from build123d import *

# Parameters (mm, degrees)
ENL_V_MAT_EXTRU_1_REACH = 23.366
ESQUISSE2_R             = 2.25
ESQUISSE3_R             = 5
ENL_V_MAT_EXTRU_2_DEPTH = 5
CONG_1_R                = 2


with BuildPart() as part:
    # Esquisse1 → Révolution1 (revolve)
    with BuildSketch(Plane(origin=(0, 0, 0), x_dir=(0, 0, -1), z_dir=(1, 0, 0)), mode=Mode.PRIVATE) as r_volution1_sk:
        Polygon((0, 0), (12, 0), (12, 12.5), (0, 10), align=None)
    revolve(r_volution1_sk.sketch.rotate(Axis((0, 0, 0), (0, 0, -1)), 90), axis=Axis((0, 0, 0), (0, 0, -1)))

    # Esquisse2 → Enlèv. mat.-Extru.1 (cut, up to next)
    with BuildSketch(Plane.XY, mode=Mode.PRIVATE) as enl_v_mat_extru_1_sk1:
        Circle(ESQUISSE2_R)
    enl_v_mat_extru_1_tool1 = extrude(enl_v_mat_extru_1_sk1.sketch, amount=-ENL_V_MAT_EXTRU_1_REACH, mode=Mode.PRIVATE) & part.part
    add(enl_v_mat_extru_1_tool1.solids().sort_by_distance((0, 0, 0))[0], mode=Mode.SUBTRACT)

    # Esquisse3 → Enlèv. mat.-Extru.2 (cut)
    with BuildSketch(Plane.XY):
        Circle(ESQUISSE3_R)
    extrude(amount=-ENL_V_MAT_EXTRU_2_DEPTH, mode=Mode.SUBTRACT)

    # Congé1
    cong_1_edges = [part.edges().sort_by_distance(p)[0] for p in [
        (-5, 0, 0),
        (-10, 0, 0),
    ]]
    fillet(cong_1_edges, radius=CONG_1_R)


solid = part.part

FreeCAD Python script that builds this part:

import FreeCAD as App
import Part
import Sketcher
from FreeCAD import Vector
Q = App.Units.Quantity


def edges_at(feature, points):
    """Names of the edges that pass closest to the given points."""
    edges = feature.Shape.Edges
    near = lambda p: min(range(len(edges)), key=lambda i: edges[i].distToShape(Part.Vertex(*p))[0])
    return sorted({f"Edge{near(p) + 1}" for p in points})

doc = App.newDocument("Part")
body = doc.addObject("PartDesign::Body", "Body")

sketch1 = body.newObject("Sketcher::SketchObject", "Sketch")
sketch1.AttachmentSupport = (doc.getObject("YZ_Plane"), [""])
sketch1.MapMode = "FlatFace"
sketch1.addGeometry(Part.LineSegment(Vector(0, 0, 0), Vector(0, -12, 0)), False)
sketch1.addGeometry(Part.LineSegment(Vector(0, -12, 0), Vector(12, -12, 0)), False)
sketch1.addGeometry(Part.LineSegment(Vector(12, -12, 0), Vector(10, 0, 0)), False)
sketch1.addGeometry(Part.LineSegment(Vector(10, 0, 0), Vector(0, 0, 0)), False)
sketch1.addConstraint(Sketcher.Constraint("Coincident", 0, 2, 1, 1))
sketch1.addConstraint(Sketcher.Constraint("Coincident", 1, 2, 2, 1))
sketch1.addConstraint(Sketcher.Constraint("Coincident", 2, 2, 3, 1))
sketch1.addConstraint(Sketcher.Constraint("Coincident", 3, 2, 0, 1))
sketch1.addConstraint(Sketcher.Constraint("Vertical", 0))
sketch1.addConstraint(Sketcher.Constraint("Horizontal", 1))
sketch1.addConstraint(Sketcher.Constraint("Horizontal", 3))
sketch1.addConstraint(Sketcher.Constraint("Coincident", 3, 2, -1, 1))
sketch1.addConstraint(Sketcher.Constraint("DistanceX", 3, 2, 3, 1, Q("10 mm")))
sketch1.addConstraint(Sketcher.Constraint("DistanceY", 0, 2, 0, 1, Q("12 mm")))
sketch1.addConstraint(Sketcher.Constraint("DistanceX", 1, 1, 1, 2, Q("12.5 mm")))
revolution = body.newObject("PartDesign::Revolution", "Revolution")
revolution.Profile = sketch1
revolution.ReferenceAxis = (sketch1, ["V_Axis"])
revolution.Angle = 360

sketch2 = body.newObject("Sketcher::SketchObject", "Sketch001")
sketch2.AttachmentSupport = (doc.getObject("XY_Plane"), [""])
sketch2.MapMode = "FlatFace"
sketch2.addGeometry(Part.Circle(Vector(0, 0, 0), Vector(0, 0, 1), 2.2), False)
sketch2.addConstraint(Sketcher.Constraint("Coincident", 0, 3, -1, 1))
sketch2.addConstraint(Sketcher.Constraint("Diameter", 0, Q("4.5 mm")))
pocket1 = body.newObject("PartDesign::Pocket", "Pocket")
pocket1.Profile = sketch2
pocket1.Type = "UpToFirst"

sketch3 = body.newObject("Sketcher::SketchObject", "Sketch002")
sketch3.AttachmentSupport = (doc.getObject("XY_Plane"), [""])
sketch3.MapMode = "FlatFace"
sketch3.addGeometry(Part.Circle(Vector(0, 0, 0), Vector(0, 0, 1), 5), False)
sketch3.addConstraint(Sketcher.Constraint("Coincident", 0, 3, -1, 1))
sketch3.addConstraint(Sketcher.Constraint("Diameter", 0, Q("10 mm")))
pocket2 = body.newObject("PartDesign::Pocket", "Pocket001")
pocket2.Profile = sketch3
pocket2.Length = 5
doc.recompute()

fillet = body.newObject("PartDesign::Fillet", "Fillet")
fillet.Base = (pocket2, edges_at(pocket2, [(-5, 0, 0), (-10, 0, 0)]))
fillet.Radius = 2

doc.recompute()
